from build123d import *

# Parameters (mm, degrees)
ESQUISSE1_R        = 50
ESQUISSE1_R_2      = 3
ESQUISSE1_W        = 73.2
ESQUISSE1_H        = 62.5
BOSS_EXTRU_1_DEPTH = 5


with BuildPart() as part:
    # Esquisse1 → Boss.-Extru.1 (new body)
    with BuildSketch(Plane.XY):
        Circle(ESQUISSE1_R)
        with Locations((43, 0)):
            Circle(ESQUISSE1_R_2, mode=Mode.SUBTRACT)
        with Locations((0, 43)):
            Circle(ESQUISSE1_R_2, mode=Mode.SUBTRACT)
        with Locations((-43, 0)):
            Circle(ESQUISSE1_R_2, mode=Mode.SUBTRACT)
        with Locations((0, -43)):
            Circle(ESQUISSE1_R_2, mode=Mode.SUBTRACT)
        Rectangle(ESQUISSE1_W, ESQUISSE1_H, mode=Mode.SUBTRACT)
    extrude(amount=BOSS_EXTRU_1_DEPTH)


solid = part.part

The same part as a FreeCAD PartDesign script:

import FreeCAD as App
import Part
import Sketcher


def add_polygon(sketch, points):
    """Adds a closed chain of lines whose ends are joined by coincident constraints."""
    first, n = sketch.GeometryCount, len(points)
    for a, b in zip(points, points[1:] + points[:1]):
        sketch.addGeometry(Part.LineSegment(App.Vector(*a, 0), App.Vector(*b, 0)), False)
    for i in range(n):
        sketch.addConstraint(Sketcher.Constraint("Coincident", first + i, 2, first + (i + 1) % n, 1))

doc = App.newDocument("Part")
body = doc.addObject("PartDesign::Body", "Body")

# Sketch on XY plane
sketch1 = body.newObject("Sketcher::SketchObject", "Sketch")
sketch1.AttachmentSupport = (doc.getObject("XY_Plane"), [""])
sketch1.MapMode = "FlatFace"
sketch1.addGeometry(Part.Circle(App.Vector(0, 0, 0), App.Vector(0, 0, 1), 50), False)  # 0
sketch1.addGeometry(Part.Circle(App.Vector(0, -43, 0), App.Vector(0, 0, 1), 3), False)  # 1
sketch1.addGeometry(Part.Circle(App.Vector(-43, 0, 0), App.Vector(0, 0, 1), 3), False)  # 2
add_polygon(sketch1, [(36.6, -31.2), (-36.6, -31.2), (-36.6, 31.2), (36.6, 31.2)])  # lines 3-6
sketch1.addGeometry(Part.Circle(App.Vector(43, 0, 0), App.Vector(0, 0, 1), 3), False)  # 7
sketch1.addGeometry(Part.Circle(App.Vector(0, 43, 0), App.Vector(0, 0, 1), 3), False)  # 8
sketch1.addConstraint([
    Sketcher.Constraint("Horizontal", 3),
    Sketcher.Constraint("Vertical", 4),
    Sketcher.Constraint("Horizontal", 5),
    Sketcher.Constraint("Vertical", 6),
    Sketcher.Constraint("Coincident", 0, 3, -1, 1),
    Sketcher.Constraint("Equal", 1, 2),
    Sketcher.Constraint("Equal", 2, 7),
    Sketcher.Constraint("Equal", 7, 8),
    Sketcher.Constraint("Symmetric", 2, 3, 7, 3, -1, 1),
    Sketcher.Constraint("Symmetric", 1, 3, 8, 3, -1, 1),
    Sketcher.Constraint("Symmetric", 3, 2, 5, 2, -1, 1),
    Sketcher.Constraint("PointOnObject", 1, 3, -2),
    Sketcher.Constraint("PointOnObject", 2, 3, -1),
    Sketcher.Constraint("Diameter", 0, 100.0),
    Sketcher.Constraint("Diameter", 1, 6.0),
    Sketcher.Constraint("DistanceX", 3, 2, 3, 1, 73.2),
    Sketcher.Constraint("DistanceY", 4, 1, 4, 2, 62.5),
    Sketcher.Constraint("DistanceY", 1, 3, -1, 1, 43.0),
    Sketcher.Constraint("DistanceX", 2, 3, -1, 1, 43.0),
])
pad1 = body.newObject("PartDesign::Pad", "Pad")
pad1.Profile = sketch1
pad1.Length = 5

doc.recompute()
